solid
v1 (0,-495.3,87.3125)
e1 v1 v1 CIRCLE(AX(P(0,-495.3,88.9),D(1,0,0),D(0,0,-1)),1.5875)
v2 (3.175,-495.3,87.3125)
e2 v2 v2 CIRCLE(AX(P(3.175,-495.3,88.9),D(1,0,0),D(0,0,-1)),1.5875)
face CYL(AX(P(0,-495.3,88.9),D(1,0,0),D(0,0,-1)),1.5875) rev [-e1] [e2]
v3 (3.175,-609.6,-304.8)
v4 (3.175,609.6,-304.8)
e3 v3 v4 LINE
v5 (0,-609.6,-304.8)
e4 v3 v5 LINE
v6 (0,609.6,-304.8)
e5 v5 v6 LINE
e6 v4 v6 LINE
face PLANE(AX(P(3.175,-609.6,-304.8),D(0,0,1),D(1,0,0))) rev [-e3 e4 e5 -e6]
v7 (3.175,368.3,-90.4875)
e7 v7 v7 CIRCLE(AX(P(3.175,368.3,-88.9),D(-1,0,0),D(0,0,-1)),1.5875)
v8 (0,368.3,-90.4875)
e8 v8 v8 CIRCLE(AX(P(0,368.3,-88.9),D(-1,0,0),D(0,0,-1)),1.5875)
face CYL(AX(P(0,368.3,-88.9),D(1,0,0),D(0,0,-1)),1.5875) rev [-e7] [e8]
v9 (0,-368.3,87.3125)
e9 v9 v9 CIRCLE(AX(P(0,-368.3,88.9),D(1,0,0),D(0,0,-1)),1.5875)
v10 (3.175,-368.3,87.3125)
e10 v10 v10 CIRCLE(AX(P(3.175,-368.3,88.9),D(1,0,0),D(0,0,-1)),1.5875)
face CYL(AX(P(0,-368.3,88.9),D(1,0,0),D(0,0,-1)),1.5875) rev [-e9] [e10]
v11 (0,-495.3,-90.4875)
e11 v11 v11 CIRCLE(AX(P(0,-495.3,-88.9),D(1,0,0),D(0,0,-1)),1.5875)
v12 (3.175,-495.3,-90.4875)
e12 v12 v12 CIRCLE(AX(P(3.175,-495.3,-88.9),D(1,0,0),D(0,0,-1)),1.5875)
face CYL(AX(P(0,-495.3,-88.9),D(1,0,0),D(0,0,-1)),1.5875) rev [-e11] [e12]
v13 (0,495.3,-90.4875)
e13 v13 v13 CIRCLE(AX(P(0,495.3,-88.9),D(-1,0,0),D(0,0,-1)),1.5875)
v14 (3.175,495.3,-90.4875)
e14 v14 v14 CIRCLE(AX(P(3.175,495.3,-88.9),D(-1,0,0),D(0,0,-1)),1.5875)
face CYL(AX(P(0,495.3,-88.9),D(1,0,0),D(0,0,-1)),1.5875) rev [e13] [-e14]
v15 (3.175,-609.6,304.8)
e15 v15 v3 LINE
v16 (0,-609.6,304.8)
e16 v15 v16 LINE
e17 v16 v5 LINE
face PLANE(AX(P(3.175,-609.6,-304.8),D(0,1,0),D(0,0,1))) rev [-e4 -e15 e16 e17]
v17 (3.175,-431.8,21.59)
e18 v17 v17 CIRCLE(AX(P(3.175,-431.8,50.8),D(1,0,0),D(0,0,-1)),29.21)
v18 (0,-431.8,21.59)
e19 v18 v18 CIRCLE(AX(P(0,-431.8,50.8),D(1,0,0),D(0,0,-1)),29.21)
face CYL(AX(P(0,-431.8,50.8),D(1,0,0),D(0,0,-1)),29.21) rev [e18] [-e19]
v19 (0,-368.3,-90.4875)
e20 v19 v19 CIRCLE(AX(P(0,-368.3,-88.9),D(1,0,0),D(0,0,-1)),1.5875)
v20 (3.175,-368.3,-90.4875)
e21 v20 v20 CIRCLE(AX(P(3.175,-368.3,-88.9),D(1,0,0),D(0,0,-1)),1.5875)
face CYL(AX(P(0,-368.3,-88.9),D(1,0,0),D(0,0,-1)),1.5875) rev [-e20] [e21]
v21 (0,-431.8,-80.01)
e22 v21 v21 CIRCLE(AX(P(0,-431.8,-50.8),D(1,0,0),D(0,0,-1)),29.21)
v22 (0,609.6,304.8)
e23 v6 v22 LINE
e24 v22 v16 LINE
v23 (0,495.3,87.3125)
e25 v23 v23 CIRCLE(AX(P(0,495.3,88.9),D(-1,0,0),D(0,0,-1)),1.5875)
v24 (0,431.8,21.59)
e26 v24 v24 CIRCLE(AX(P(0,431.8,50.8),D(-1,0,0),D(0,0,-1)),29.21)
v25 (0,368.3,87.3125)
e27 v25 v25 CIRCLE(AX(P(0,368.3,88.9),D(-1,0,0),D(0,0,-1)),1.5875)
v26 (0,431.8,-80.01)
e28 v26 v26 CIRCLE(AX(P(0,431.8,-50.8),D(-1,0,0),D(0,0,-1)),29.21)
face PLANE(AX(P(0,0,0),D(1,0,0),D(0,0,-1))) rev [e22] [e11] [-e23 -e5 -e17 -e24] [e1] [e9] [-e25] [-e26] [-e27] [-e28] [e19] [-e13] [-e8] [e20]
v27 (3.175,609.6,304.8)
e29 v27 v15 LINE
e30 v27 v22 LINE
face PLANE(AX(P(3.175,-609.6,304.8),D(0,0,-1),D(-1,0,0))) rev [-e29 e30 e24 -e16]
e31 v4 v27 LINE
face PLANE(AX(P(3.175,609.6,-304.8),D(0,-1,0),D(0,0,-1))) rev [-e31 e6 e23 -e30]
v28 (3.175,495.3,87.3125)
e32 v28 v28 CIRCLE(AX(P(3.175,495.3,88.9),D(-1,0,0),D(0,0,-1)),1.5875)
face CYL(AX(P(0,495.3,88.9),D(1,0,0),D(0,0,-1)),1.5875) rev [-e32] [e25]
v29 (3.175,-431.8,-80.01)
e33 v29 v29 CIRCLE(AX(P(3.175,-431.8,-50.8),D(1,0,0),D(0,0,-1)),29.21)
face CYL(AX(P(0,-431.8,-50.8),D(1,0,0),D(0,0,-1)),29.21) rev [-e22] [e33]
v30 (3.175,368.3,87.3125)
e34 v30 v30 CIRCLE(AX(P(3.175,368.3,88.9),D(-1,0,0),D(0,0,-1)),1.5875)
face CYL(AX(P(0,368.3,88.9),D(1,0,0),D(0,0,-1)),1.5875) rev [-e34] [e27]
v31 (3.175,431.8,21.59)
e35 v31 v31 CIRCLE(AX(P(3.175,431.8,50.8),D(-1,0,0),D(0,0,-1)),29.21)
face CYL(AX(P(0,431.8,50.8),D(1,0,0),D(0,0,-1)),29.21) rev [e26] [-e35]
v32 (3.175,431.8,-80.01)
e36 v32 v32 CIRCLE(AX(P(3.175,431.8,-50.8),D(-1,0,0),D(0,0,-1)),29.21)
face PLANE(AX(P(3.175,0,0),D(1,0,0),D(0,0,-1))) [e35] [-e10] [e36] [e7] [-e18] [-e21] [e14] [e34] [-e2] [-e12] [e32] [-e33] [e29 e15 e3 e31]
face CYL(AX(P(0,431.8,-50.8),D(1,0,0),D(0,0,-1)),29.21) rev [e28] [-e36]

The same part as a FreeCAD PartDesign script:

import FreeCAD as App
import Part
import Sketcher
from FreeCAD import Vector
Q = App.Units.Quantity

doc = App.newDocument("Part")
body = doc.addObject("PartDesign::Body", "Body")

# Sketch on YZ plane
sketch1 = doc.addObject("Sketcher::SketchObject", "Sketch")
body.addObject(sketch1)
sketch1.AttachmentSupport = (doc.YZ_Plane, [""])
sketch1.MapMode = "FlatFace"
sketch1.addGeometry(Part.LineSegment(Vector(610, 305, 0), Vector(-610, 305, 0)), False)
sketch1.addGeometry(Part.LineSegment(Vector(-610, 305, 0), Vector(-610, -305, 0)), False)
sketch1.addGeometry(Part.LineSegment(Vector(-610, -305, 0), Vector(610, -305, 0)), False)
sketch1.addGeometry(Part.LineSegment(Vector(610, -305, 0), Vector(610, 305, 0)), False)
sketch1.addConstraint(Sketcher.Constraint("Coincident", 0, 2, 1, 1))
sketch1.addConstraint(Sketcher.Constraint("Coincident", 1, 2, 2, 1))
sketch1.addConstraint(Sketcher.Constraint("Coincident", 2, 2, 3, 1))
sketch1.addConstraint(Sketcher.Constraint("Coincident", 3, 2, 0, 1))
sketch1.addConstraint(Sketcher.Constraint("Horizontal", 0))
sketch1.addConstraint(Sketcher.Constraint("Vertical", 1))
sketch1.addConstraint(Sketcher.Constraint("Horizontal", 2))
sketch1.addConstraint(Sketcher.Constraint("Vertical", 3))
sketch1.addConstraint(Sketcher.Constraint("Symmetric", 0, 2, 2, 2, -1, 1))
sketch1.addConstraint(Sketcher.Constraint("DistanceX", 0, 2, 0, 1, Q("48 in")))
sketch1.addConstraint(Sketcher.Constraint("DistanceY", 1, 2, 1, 1, Q("24 in")))
pad1 = doc.addObject("PartDesign::Pad", "Pad")
body.addObject(pad1)
pad1.Profile = sketch1
pad1.Length = Q("0.125 in")

# Sketch on YZ plane
sketch2 = doc.addObject("Sketcher::SketchObject", "Sketch001")
body.addObject(sketch2)
sketch2.AttachmentSupport = (doc.YZ_Plane, [""])
sketch2.MapMode = "FlatFace"
sketch2.AttachmentOffset = App.Placement(Vector(0, 0, 0.125 * 25.4), App.Rotation())
sketch2.addGeometry(Part.Circle(Vector(-432, 51, 0), Vector(0, 0, 1), 29), False)
sketch2.addGeometry(Part.Circle(Vector(-432, -51, 0), Vector(0, 0, 1), 29), False)
sketch2.addConstraint(Sketcher.Constraint("Equal", 0, 1))
sketch2.addConstraint(Sketcher.Constraint("Symmetric", 0, 3, 1, 3, -1))
sketch2.addConstraint(Sketcher.Constraint("Diameter", 0, Q("2.3 in")))
sketch2.addConstraint(Sketcher.Constraint("DistanceX", 0, 3, -1, 1, Q("17 in")))
sketch2.addConstraint(Sketcher.Constraint("DistanceY", -1, 1, 0, 3, Q("2 in")))
pocket1 = doc.addObject("PartDesign::Pocket", "Pocket")
body.addObject(pocket1)
pocket1.Profile = sketch2
pocket1.Type = "ThroughAll"

# Sketch on YZ plane
sketch3 = doc.addObject("Sketcher::SketchObject", "Sketch002")
body.addObject(sketch3)
sketch3.AttachmentSupport = (doc.YZ_Plane, [""])
sketch3.MapMode = "FlatFace"
sketch3.AttachmentOffset = App.Placement(Vector(0, 0, 0.125 * 25.4), App.Rotation())
sketch3.addGeometry(Part.Circle(Vector(-368.3, 88.9, 0), Vector(0, 0, 1), 1.6), False)
sketch3.addGeometry(Part.Circle(Vector(-368.3, -88.9, 0), Vector(0, 0, 1), 1.6), False)
sketch3.addGeometry(Part.Circle(Vector(-495.3, 88.9, 0), Vector(0, 0, 1), 1.6), False)
sketch3.addGeometry(Part.Circle(Vector(-495.3, -88.9, 0), Vector(0, 0, 1), 1.6), False)
sketch3.addConstraint(Sketcher.Constraint("Equal", 0, 1))
sketch3.addConstraint(Sketcher.Constraint("Equal", 1, 2))
sketch3.addConstraint(Sketcher.Constraint("Equal", 2, 3))
sketch3.addConstraint(Sketcher.Constraint("Symmetric", 0, 3, 1, 3, -1))
sketch3.addConstraint(Sketcher.Constraint("Symmetric", 2, 3, 3, 3, -1))
sketch3.addConstraint(Sketcher.Constraint("Horizontal", 0, 3, 2, 3))
sketch3.addConstraint(Sketcher.Constraint("Diameter", 0, Q("0.125 in")))
sketch3.addConstraint(Sketcher.Constraint("DistanceY", 1, 3, 0, 3, Q("7 in")))
sketch3.addConstraint(Sketcher.Constraint("DistanceX", 2, 3, 0, 3, Q("5 in")))
sketch3.addConstraint(Sketcher.Constraint("DistanceX", 0, 3, -1, 1, Q("14.5 in")))
pocket2 = doc.addObject("PartDesign::Pocket", "Pocket001")
body.addObject(pocket2)
pocket2.Profile = sketch3
pocket2.Type = "ThroughAll"
doc.recompute()

mirrored = doc.addObject("PartDesign::Mirrored", "Mirrored")
body.addObject(mirrored)
mirrored.Originals = [pocket1, pocket2]
mirrored.MirrorPlane = (doc.XZ_Plane, [""])
body.Tip = mirrored

doc.recompute()
